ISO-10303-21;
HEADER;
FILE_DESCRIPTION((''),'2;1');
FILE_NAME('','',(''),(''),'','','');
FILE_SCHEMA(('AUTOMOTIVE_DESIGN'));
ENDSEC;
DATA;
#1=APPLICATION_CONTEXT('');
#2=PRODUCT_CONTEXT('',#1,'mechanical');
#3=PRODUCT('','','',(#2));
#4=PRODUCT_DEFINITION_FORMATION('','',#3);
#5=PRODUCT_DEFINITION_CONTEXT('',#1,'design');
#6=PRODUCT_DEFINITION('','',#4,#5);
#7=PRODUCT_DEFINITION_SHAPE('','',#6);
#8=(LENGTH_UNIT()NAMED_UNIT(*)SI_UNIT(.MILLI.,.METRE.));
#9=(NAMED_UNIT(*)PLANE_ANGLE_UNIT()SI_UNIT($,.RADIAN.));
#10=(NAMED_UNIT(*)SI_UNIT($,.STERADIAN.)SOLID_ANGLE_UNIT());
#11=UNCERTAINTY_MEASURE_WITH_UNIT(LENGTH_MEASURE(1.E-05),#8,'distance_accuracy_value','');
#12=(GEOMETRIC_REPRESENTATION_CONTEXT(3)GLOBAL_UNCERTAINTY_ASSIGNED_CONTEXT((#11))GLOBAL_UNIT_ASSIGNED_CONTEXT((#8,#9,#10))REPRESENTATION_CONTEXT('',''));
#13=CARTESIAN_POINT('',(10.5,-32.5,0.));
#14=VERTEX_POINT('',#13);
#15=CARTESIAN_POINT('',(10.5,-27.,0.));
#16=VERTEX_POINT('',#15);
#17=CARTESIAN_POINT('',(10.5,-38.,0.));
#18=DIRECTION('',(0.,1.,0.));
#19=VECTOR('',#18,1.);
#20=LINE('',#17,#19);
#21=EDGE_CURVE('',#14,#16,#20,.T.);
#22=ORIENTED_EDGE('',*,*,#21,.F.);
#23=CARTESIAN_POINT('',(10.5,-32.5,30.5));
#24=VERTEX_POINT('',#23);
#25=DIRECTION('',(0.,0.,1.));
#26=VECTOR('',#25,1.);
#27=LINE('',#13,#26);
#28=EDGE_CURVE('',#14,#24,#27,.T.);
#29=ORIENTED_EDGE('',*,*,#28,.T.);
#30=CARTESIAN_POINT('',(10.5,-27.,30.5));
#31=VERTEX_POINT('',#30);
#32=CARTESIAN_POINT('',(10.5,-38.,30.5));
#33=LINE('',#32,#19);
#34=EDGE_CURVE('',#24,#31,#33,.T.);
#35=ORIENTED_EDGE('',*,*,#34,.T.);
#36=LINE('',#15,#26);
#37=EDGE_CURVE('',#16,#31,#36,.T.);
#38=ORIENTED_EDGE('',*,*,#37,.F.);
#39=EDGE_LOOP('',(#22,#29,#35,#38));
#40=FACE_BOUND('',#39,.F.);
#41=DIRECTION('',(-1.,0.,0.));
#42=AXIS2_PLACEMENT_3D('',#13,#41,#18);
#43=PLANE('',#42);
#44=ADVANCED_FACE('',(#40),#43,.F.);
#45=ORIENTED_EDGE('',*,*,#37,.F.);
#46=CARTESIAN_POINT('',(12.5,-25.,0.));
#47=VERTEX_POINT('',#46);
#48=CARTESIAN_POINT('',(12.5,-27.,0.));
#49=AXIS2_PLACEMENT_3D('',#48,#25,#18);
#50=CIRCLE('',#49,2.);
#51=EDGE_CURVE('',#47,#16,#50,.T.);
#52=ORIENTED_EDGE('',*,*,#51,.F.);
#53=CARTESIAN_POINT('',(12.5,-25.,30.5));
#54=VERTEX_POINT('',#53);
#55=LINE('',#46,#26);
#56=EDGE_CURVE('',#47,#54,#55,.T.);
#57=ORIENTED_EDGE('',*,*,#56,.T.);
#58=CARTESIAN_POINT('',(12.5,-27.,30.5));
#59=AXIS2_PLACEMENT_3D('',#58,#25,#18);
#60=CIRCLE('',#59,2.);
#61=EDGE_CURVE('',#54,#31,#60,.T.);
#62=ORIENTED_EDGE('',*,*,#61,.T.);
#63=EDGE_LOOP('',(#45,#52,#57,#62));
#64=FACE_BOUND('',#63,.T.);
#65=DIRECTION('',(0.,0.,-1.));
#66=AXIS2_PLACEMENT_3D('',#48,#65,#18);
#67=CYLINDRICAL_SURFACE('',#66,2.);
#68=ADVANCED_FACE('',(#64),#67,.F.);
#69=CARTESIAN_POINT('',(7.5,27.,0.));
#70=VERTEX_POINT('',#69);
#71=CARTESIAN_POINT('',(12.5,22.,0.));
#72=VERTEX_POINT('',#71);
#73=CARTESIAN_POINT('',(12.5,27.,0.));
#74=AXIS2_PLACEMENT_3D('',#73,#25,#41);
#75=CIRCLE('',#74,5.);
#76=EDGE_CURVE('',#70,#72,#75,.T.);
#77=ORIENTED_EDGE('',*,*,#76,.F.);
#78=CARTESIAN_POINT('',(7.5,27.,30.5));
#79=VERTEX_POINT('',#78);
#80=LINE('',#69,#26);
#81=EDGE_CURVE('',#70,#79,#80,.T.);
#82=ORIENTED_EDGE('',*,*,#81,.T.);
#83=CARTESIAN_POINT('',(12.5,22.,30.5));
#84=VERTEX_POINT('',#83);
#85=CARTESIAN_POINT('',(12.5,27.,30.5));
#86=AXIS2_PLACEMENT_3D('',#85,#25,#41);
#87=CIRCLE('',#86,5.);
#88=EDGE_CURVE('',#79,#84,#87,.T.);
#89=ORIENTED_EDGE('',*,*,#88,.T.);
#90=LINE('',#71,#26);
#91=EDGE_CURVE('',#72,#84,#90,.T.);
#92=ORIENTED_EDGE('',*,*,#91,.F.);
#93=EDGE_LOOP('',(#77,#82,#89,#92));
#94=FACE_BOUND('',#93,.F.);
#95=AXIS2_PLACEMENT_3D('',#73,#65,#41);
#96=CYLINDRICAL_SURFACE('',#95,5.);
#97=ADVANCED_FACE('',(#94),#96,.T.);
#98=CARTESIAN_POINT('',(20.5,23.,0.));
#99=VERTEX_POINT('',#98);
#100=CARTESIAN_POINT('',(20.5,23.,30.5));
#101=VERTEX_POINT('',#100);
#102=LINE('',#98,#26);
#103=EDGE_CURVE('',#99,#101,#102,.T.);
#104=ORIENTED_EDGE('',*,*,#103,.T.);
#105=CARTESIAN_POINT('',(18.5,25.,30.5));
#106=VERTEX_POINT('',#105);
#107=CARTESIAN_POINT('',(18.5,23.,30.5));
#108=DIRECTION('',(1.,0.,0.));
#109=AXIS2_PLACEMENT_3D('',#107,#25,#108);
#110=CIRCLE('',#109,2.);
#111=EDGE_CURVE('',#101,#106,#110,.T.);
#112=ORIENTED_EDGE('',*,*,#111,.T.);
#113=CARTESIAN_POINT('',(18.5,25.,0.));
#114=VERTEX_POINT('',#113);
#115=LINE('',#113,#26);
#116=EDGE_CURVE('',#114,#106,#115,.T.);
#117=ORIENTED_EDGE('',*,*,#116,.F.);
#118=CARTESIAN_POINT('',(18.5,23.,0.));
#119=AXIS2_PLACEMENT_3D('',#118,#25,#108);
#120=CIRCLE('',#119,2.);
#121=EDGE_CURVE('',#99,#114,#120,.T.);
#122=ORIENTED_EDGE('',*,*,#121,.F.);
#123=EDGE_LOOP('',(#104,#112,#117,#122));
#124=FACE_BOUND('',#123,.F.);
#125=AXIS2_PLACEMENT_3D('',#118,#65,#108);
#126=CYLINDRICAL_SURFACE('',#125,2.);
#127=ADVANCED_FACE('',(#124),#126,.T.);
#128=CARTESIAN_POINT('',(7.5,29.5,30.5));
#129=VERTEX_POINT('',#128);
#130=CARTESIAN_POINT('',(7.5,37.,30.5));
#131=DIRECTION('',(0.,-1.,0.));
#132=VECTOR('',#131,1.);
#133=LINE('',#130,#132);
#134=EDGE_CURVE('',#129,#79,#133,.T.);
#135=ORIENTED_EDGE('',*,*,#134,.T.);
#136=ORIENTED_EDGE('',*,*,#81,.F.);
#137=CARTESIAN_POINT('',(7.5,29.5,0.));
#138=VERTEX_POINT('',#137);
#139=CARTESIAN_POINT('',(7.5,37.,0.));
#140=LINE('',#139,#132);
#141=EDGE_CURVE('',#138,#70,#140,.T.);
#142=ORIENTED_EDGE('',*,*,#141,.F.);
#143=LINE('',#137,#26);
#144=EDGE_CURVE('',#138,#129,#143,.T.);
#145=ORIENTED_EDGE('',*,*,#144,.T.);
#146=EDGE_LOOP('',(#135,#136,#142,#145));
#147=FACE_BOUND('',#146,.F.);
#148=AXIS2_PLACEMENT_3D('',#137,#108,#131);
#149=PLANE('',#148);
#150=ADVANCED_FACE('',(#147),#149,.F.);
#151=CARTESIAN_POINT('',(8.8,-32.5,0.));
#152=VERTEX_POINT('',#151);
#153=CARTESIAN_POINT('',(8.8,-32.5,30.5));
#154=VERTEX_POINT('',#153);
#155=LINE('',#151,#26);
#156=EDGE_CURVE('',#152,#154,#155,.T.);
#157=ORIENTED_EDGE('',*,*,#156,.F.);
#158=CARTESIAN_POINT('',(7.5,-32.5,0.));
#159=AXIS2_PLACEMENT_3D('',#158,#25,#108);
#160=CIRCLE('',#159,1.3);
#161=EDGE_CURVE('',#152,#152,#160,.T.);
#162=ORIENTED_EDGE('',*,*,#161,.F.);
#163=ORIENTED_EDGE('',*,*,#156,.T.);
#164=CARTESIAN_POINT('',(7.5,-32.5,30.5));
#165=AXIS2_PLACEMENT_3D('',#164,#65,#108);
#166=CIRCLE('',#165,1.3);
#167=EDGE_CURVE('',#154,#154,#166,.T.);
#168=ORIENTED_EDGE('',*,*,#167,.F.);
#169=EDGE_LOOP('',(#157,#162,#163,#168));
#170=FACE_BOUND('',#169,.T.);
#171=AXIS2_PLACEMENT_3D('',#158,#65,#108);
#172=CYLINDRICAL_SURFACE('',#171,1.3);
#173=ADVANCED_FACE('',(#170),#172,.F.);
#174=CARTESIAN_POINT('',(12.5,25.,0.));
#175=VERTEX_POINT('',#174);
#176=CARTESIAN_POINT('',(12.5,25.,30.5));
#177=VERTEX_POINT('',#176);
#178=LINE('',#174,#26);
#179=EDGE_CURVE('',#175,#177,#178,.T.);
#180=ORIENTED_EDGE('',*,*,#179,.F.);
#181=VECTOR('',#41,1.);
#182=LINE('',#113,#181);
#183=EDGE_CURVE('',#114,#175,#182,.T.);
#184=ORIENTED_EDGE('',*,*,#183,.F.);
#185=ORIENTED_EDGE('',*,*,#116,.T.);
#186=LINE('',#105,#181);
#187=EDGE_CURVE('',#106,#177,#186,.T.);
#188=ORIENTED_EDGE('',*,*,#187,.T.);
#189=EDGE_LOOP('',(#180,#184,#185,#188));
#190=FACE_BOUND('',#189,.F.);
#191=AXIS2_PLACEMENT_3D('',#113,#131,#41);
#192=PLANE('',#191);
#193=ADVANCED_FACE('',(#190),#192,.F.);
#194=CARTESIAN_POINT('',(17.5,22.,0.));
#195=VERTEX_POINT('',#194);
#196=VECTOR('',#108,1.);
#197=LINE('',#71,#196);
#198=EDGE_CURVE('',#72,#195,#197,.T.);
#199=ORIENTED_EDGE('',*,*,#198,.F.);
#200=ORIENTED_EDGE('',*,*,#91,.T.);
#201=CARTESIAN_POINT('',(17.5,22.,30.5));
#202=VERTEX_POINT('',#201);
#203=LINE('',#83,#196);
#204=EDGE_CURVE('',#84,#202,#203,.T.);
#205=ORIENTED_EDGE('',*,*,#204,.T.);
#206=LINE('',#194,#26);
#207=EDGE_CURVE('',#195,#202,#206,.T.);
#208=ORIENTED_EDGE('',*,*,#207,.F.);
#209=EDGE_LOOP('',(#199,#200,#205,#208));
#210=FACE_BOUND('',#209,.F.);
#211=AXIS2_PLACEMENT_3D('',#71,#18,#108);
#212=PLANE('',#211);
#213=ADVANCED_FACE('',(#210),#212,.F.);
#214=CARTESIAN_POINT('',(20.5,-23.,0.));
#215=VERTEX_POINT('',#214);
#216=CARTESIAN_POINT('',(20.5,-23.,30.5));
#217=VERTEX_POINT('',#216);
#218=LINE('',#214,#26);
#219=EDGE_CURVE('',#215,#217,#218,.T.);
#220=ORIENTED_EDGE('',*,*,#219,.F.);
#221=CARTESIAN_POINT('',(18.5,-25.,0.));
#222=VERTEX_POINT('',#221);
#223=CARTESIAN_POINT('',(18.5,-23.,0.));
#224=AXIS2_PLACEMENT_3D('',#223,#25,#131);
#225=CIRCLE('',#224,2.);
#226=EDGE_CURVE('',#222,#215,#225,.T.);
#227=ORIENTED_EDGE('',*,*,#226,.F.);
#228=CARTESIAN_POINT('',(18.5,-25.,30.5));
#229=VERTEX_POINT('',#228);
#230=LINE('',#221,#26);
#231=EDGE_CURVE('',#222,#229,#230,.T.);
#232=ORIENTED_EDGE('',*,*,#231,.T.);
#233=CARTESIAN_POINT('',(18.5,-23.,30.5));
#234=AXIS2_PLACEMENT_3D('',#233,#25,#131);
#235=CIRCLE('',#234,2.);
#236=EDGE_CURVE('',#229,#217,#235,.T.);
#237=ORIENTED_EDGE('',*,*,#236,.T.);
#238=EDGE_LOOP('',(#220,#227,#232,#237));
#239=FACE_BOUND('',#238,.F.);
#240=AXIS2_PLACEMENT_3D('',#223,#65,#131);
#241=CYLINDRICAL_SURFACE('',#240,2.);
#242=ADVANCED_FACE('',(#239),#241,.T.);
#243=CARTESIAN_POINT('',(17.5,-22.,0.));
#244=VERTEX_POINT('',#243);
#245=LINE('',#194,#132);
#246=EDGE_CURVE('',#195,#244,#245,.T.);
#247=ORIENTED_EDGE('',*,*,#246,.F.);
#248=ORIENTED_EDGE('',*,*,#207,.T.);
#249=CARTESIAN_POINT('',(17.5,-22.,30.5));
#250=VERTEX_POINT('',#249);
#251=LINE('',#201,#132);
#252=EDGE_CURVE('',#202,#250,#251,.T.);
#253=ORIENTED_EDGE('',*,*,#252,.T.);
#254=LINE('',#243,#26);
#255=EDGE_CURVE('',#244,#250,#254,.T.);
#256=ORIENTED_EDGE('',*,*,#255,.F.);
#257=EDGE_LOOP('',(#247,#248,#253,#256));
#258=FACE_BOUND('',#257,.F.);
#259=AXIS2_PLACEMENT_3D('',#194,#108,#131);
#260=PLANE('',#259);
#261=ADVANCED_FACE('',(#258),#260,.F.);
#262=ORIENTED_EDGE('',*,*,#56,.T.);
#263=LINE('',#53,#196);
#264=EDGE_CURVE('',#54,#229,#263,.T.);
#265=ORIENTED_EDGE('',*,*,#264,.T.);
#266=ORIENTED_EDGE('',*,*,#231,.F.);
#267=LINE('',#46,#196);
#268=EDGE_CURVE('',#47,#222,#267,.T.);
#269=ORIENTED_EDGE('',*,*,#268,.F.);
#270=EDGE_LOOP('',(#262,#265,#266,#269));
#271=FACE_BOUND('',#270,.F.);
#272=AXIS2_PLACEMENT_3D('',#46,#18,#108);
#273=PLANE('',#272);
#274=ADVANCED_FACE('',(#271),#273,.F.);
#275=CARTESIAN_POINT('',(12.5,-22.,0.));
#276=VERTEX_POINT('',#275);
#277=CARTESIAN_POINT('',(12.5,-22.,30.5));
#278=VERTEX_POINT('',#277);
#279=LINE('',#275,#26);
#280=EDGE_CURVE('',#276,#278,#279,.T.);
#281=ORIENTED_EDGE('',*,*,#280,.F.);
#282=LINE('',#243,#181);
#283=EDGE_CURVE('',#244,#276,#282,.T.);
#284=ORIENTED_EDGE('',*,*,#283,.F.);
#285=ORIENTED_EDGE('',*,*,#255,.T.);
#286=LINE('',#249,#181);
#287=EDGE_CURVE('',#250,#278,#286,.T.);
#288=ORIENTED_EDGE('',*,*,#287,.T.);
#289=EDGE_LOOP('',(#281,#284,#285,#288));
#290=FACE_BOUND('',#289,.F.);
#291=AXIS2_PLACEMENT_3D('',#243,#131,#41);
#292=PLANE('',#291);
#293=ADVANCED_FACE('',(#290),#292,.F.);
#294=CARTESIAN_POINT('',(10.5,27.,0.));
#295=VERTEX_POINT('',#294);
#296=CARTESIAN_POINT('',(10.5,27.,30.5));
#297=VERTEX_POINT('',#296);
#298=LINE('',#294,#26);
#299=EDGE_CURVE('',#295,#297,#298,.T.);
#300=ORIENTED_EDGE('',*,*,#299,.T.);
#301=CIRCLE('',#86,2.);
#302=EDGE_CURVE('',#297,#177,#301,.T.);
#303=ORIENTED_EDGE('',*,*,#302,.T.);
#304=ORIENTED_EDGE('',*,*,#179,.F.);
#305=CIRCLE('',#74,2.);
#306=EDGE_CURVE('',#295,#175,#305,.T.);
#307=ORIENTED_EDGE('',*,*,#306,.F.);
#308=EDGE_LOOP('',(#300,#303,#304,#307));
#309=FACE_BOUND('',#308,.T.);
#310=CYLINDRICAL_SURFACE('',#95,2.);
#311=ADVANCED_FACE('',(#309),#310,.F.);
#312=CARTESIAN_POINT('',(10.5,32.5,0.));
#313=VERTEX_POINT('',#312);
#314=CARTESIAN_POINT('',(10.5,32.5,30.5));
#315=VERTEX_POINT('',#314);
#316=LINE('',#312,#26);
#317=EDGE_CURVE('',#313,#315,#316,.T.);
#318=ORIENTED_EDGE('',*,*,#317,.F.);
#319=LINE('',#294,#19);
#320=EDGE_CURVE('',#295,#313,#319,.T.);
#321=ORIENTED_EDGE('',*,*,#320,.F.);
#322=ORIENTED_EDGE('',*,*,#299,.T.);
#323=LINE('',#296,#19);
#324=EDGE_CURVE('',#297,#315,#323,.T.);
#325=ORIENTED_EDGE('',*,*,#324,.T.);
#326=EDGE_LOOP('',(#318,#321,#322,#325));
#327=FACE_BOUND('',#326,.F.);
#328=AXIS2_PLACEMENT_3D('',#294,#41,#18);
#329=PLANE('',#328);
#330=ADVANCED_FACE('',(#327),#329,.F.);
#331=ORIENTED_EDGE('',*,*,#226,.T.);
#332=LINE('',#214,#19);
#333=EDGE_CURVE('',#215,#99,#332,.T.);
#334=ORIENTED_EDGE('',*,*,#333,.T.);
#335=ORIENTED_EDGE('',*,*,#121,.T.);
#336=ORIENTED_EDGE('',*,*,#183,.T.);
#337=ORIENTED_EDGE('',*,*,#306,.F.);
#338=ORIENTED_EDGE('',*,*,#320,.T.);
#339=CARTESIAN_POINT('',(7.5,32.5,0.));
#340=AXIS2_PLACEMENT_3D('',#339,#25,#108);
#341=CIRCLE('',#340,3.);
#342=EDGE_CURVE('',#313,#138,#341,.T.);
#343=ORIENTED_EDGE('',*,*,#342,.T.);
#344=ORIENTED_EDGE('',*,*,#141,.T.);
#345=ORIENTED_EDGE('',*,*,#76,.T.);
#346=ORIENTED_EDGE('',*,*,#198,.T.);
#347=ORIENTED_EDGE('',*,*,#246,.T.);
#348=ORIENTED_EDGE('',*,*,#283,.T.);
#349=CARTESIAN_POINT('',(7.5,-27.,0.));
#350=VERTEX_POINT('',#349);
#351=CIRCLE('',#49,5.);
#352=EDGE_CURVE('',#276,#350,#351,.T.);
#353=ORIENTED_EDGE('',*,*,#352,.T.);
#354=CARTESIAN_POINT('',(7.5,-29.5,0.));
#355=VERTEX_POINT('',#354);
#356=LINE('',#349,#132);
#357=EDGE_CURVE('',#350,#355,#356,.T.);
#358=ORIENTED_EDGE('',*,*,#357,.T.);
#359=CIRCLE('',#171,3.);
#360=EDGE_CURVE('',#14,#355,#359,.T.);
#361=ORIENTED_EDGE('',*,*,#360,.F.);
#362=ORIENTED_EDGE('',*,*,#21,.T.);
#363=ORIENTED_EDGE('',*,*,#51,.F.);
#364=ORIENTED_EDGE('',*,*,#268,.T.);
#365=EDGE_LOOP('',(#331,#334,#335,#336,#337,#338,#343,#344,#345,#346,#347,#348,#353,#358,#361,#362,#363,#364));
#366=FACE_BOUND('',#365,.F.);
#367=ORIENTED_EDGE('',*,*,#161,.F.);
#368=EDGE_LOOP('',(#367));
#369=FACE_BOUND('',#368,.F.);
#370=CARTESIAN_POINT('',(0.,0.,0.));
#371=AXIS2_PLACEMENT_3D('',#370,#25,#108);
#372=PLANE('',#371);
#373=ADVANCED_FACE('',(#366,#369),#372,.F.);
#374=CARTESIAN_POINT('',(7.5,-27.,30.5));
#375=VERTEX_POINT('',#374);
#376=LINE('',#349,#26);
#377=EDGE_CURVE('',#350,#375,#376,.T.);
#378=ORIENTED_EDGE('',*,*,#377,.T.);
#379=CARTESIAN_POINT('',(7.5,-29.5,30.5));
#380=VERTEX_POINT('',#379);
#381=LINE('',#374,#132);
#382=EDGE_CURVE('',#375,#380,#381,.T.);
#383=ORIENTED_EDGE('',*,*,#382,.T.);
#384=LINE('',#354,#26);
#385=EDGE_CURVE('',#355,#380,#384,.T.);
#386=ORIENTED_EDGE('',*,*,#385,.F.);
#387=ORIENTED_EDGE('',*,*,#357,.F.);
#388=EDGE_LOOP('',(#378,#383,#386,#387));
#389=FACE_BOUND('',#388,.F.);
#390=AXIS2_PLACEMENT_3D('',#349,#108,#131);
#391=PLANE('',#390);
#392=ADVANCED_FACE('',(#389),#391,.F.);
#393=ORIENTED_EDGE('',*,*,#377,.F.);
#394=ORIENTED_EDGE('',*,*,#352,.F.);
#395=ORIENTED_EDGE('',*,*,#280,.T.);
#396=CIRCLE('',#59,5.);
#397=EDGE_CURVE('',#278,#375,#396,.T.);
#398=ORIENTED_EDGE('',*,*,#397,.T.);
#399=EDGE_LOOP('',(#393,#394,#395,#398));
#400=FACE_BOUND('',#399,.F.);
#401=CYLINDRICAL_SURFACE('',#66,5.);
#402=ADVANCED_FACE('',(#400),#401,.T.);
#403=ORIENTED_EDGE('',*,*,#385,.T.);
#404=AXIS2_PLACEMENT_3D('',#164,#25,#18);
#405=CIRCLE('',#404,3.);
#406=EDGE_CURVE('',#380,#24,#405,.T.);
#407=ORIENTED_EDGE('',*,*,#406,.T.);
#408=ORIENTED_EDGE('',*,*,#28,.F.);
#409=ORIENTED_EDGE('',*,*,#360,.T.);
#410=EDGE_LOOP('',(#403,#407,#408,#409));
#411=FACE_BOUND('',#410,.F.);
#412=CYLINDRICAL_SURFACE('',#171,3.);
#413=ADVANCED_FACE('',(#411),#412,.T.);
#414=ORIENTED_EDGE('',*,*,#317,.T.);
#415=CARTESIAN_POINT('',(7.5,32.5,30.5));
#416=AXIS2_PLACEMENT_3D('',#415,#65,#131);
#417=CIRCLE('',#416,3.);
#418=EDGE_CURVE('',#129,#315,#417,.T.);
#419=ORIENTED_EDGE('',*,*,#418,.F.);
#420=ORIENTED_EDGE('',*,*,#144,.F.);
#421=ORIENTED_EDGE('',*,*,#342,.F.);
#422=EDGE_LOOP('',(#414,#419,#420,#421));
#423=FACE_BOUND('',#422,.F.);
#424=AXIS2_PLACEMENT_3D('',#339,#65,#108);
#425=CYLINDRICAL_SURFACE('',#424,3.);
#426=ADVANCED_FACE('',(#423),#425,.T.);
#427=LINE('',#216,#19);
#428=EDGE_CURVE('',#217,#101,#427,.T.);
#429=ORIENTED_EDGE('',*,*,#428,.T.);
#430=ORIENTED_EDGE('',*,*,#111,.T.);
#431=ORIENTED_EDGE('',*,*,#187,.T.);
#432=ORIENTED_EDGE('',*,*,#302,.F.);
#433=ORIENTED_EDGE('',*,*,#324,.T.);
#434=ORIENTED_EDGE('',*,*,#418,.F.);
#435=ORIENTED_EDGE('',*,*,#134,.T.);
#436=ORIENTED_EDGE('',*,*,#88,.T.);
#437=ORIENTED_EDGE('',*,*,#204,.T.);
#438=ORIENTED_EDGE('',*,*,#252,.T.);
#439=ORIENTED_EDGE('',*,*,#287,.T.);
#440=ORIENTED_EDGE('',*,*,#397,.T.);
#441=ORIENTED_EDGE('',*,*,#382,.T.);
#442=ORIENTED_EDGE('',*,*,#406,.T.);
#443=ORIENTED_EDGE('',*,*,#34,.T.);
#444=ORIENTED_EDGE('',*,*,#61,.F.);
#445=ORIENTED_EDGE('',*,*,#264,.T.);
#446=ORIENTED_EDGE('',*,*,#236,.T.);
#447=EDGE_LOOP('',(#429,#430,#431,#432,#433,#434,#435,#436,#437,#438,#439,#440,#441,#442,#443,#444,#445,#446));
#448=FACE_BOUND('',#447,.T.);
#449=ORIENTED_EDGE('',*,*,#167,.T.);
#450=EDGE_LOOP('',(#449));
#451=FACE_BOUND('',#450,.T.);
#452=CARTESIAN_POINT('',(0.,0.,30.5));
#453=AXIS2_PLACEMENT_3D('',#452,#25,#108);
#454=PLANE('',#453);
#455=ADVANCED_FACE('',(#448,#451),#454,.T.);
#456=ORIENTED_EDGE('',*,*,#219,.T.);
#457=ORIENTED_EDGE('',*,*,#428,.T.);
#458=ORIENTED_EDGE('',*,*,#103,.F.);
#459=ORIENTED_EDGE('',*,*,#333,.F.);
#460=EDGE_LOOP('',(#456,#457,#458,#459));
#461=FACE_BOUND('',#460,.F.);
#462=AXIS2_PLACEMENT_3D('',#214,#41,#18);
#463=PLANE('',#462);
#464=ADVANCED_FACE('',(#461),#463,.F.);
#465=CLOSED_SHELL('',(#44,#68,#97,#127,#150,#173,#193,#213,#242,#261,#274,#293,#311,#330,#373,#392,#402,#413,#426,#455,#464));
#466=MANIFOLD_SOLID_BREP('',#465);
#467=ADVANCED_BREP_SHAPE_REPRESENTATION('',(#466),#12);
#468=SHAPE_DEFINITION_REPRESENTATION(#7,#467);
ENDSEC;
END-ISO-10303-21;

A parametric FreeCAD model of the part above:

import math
import FreeCAD as App
import Part
import Sketcher
from FreeCAD import Vector

doc = App.newDocument("Part")
body = doc.addObject("PartDesign::Body", "Body")

# Sketch on XY plane
sketch1 = body.newObject("Sketcher::SketchObject", "Sketch")
sketch1.AttachmentSupport = (doc.getObject("XY_Plane"), [""])
sketch1.MapMode = "FlatFace"
sketch1.addGeometry([
    Part.LineSegment(Vector(7.5, 29.5, 0), Vector(7.5, 27, 0)),  # 0
    Part.ArcOfCircle(Part.Circle(Vector(12.5, 27, 0), Vector(0, 0, 1), 5), math.radians(180), math.radians(270)),  # 1
    Part.LineSegment(Vector(12.5, 22, 0), Vector(17.5, 22, 0)),  # 2
    Part.LineSegment(Vector(17.5, 22, 0), Vector(17.5, -22, 0)),  # 3
    Part.LineSegment(Vector(17.5, -22, 0), Vector(12.5, -22, 0)),  # 4
    Part.ArcOfCircle(Part.Circle(Vector(12.5, -27, 0), Vector(0, 0, 1), 5), math.radians(90), math.radians(180)),  # 5
    Part.LineSegment(Vector(7.5, -27, 0), Vector(7.5, -29.5, 0)),  # 6
    Part.ArcOfCircle(Part.Circle(Vector(7.5, -32.5, 0), Vector(0, 0, 1), 3), math.radians(90), math.radians(360)),  # 7
    Part.LineSegment(Vector(10.5, -32.5, 0), Vector(10.5, -27, 0)),  # 8
    Part.ArcOfCircle(Part.Circle(Vector(12.5, -27, 0), Vector(0, 0, 1), 2), math.radians(90), math.radians(180)),  # 9
    Part.LineSegment(Vector(12.5, -25, 0), Vector(18.5, -25, 0)),  # 10
    Part.ArcOfCircle(Part.Circle(Vector(18.5, -23, 0), Vector(0, 0, 1), 2), math.radians(-90), math.radians(0)),  # 11
    Part.LineSegment(Vector(20.5, -23, 0), Vector(20.5, 23, 0)),  # 12
    Part.ArcOfCircle(Part.Circle(Vector(18.5, 23, 0), Vector(0, 0, 1), 2), math.radians(0), math.radians(90)),  # 13
    Part.LineSegment(Vector(18.5, 25, 0), Vector(12.5, 25, 0)),  # 14
    Part.ArcOfCircle(Part.Circle(Vector(12.5, 27, 0), Vector(0, 0, 1), 2), math.radians(180), math.radians(270)),  # 15
    Part.LineSegment(Vector(10.5, 27, 0), Vector(10.5, 32.5, 0)),  # 16
    Part.ArcOfCircle(Part.Circle(Vector(7.5, 32.5, 0), Vector(0, 0, 1), 3), math.radians(0), math.radians(270)),  # 17
    Part.Circle(Vector(7.5, -32.5, 0), Vector(0, 0, 1), 1.3),  # 18
], False)
sketch1.addConstraint([
    Sketcher.Constraint("Tangent", 0, 2, 1, 1),
    Sketcher.Constraint("Tangent", 1, 2, 2, 1),
    Sketcher.Constraint("Coincident", 2, 2, 3, 1),
    Sketcher.Constraint("Coincident", 3, 2, 4, 1),
    Sketcher.Constraint("Tangent", 4, 2, 5, 1),
    Sketcher.Constraint("Tangent", 5, 2, 6, 1),
    Sketcher.Constraint("Coincident", 6, 2, 7, 1),
    Sketcher.Constraint("Tangent", 7, 2, 8, 1),
    Sketcher.Constraint("Tangent", 8, 2, 9, 2),
    Sketcher.Constraint("Tangent", 9, 1, 10, 1),
    Sketcher.Constraint("Tangent", 10, 2, 11, 1),
    Sketcher.Constraint("Tangent", 11, 2, 12, 1),
    Sketcher.Constraint("Tangent", 12, 2, 13, 1),
    Sketcher.Constraint("Tangent", 13, 2, 14, 1),
    Sketcher.Constraint("Tangent", 14, 2, 15, 2),
    Sketcher.Constraint("Tangent", 15, 1, 16, 1),
    Sketcher.Constraint("Tangent", 16, 2, 17, 1),
    Sketcher.Constraint("Coincident", 17, 2, 0, 1),
    Sketcher.Constraint("Vertical", 0),
    Sketcher.Constraint("Horizontal", 2),
    Sketcher.Constraint("Vertical", 3),
    Sketcher.Constraint("Horizontal", 4),
    Sketcher.Constraint("Vertical", 6),
    Sketcher.Constraint("Vertical", 8),
    Sketcher.Constraint("Horizontal", 10),
    Sketcher.Constraint("Vertical", 12),
    Sketcher.Constraint("Horizontal", 14),
    Sketcher.Constraint("Vertical", 16),
    Sketcher.Constraint("Coincident", 9, 3, 5, 3),
    Sketcher.Constraint("Coincident", 15, 3, 1, 3),
    Sketcher.Constraint("Coincident", 18, 3, 7, 3),
    Sketcher.Constraint("Equal", 1, 5),
    Sketcher.Constraint("Equal", 9, 11),
    Sketcher.Constraint("Equal", 11, 13),
    Sketcher.Constraint("Equal", 13, 15),
    Sketcher.Constraint("Equal", 7, 17),
    Sketcher.Constraint("Symmetric", 1, 3, 5, 3, -1),
    Sketcher.Constraint("Vertical", 18, 3, 0, 2),
    Sketcher.Constraint("Equal", 0, 6),
    Sketcher.Constraint("Radius", 7, 3.0),
    Sketcher.Constraint("Diameter", 18, 2.6),
    Sketcher.Constraint("DistanceX", 10, 1, 10, 2, 6.0),
    Sketcher.Constraint("Radius", 1, 5.0),
    Sketcher.Constraint("DistanceX", 3, 2, 11, 2, 3.0),
    Sketcher.Constraint("DistanceY", 3, 2, 3, 1, 44.0),
    Sketcher.Constraint("DistanceY", 0, 2, 0, 1, 2.5),
    Sketcher.Constraint("DistanceX", -1, 1, 1, 3, 12.5),
])
pad1 = body.newObject("PartDesign::Pad", "Pad")
pad1.Profile = sketch1
pad1.Length = 30.5

doc.recompute()
